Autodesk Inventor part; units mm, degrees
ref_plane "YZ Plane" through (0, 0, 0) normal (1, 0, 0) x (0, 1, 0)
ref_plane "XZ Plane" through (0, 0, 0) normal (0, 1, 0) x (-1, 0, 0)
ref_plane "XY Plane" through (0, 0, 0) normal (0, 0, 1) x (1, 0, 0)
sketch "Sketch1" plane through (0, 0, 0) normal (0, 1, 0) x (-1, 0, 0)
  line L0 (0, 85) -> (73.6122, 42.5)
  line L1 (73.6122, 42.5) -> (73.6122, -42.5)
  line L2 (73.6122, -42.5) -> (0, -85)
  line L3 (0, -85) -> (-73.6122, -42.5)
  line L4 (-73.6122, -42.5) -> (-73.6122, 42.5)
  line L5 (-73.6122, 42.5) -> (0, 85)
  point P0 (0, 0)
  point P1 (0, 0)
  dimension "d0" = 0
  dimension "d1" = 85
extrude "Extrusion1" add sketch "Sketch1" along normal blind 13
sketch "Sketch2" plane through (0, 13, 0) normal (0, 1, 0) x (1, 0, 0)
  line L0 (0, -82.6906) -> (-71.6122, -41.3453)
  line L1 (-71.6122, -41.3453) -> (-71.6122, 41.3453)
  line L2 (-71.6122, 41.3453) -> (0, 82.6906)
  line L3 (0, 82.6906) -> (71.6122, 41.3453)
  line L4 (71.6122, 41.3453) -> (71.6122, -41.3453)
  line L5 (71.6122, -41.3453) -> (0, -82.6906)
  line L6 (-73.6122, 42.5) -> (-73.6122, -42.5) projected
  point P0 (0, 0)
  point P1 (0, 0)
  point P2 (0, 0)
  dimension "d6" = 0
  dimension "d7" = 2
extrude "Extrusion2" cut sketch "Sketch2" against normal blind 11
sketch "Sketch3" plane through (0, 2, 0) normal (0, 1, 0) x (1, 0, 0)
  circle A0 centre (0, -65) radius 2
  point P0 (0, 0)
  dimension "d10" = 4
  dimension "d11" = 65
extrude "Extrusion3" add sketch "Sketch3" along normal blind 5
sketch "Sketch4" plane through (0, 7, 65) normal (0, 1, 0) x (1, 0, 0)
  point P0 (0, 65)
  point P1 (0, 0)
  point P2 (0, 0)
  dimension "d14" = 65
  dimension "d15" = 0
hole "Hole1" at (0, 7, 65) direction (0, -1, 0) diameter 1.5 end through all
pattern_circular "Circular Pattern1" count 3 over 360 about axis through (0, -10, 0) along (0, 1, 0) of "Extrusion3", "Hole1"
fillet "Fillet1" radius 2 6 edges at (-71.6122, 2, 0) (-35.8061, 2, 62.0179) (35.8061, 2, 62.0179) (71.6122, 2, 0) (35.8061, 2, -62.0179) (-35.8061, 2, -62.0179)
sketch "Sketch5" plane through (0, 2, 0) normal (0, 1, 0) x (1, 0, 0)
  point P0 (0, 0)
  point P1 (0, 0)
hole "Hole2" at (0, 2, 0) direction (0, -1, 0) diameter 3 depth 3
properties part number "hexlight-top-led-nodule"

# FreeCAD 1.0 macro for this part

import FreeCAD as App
import Part
import Sketcher
from FreeCAD import Vector
Q = App.Units.Quantity


def edges_at(feature, points):
    """Names of the edges that pass closest to the given points."""
    edges = feature.Shape.Edges
    near = lambda p: min(range(len(edges)), key=lambda i: edges[i].distToShape(Part.Vertex(*p))[0])
    return sorted({f"Edge{near(p) + 1}" for p in points})


def add_polygon(sketch, points):
    """Adds a closed chain of lines whose ends are joined by coincident constraints."""
    first, n = sketch.GeometryCount, len(points)
    for a, b in zip(points, points[1:] + points[:1]):
        sketch.addGeometry(Part.LineSegment(App.Vector(*a, 0), App.Vector(*b, 0)), False)
    for i in range(n):
        sketch.addConstraint(Sketcher.Constraint("Coincident", first + i, 2, first + (i + 1) % n, 1))

doc = App.newDocument("Part")
params = doc.addObject("Spreadsheet::Sheet", "Params")
for row, (alias, value) in enumerate([
    ("sketch1_height", "85 mm"),
    ("sketch1_length", "85 mm"),
    ("pad1_length", "13 mm"),
    ("pocket1_length", "11 mm"),
    ("sketch3_diameter", "4 mm"),
    ("pad2_length", "5 mm"),
    ("sketch4_diameter", "1.5 mm"),
    ("hole_diameter", "1.5 mm"),
    ("fillet_radius", "2 mm"),
    ("sketch5_diameter", "3 mm"),
    ("hole2_diameter", "3 mm"),
    ("hole2_depth", "3 mm"),
], start=1):
    params.set(f"A{row}", alias)
    params.set(f"B{row}", "=" + value)
    params.setAlias(f"B{row}", alias)

body = doc.addObject("PartDesign::Body", "Body")

# Sketch on XZ plane
sketch1 = doc.addObject("Sketcher::SketchObject", "Sketch")
body.addObject(sketch1)
sketch1.AttachmentSupport = (doc.XZ_Plane, [""])
sketch1.MapMode = "FlatFace"
add_polygon(sketch1, [(-73.6122, 42.5), (0, 85), (73.6122, 42.5), (73.6122, -42.5), (0, -85), (-73.6122, -42.5)])  # lines 0-5
sketch1.addConstraint([
    Sketcher.Constraint("Vertical", 2),
    Sketcher.Constraint("Vertical", 5),
    Sketcher.Constraint("Symmetric", 0, 2, 3, 2, -1, 1),
    Sketcher.Constraint("Symmetric", 1, 2, 4, 2, -1, 1),
    Sketcher.Constraint("PointOnObject", 0, 2, -2),
    Sketcher.Constraint("Parallel", 0, 3),
    Sketcher.Constraint("Horizontal", 2, 2, 4, 2),
    Sketcher.Constraint("DistanceY", 2, 2, 2, 1, Q("85 mm")),
    Sketcher.Constraint("Distance", 0, Q("85 mm")),
    Sketcher.Constraint("DistanceY", -1, 1, 0, 2, Q("85 mm")),
])
sketch1.setExpression("Constraints[13]", "Params.sketch1_height")
sketch1.setExpression("Constraints[14]", "Params.sketch1_length")
pad1 = doc.addObject("PartDesign::Pad", "Pad")
body.addObject(pad1)
pad1.Profile = sketch1
pad1.setExpression("Length", "Params.pad1_length")
pad1.Reversed = True

# Sketch on XZ plane
sketch2 = doc.addObject("Sketcher::SketchObject", "Sketch001")
body.addObject(sketch2)
sketch2.AttachmentSupport = (doc.XZ_Plane, [""])
sketch2.MapMode = "FlatFace"
sketch2.AttachmentOffset = App.Placement(Vector(0, 0, -13), App.Rotation())
add_polygon(sketch2, [(-71.6122, 41.3453), (0, 82.6906), (71.6122, 41.3453), (71.6122, -41.3453), (0, -82.6906), (-71.6122, -41.3453)])  # lines 0-5
sketch2.addConstraint([
    Sketcher.Constraint("Vertical", 2),
    Sketcher.Constraint("Vertical", 5),
    Sketcher.Constraint("Symmetric", 0, 2, 3, 2, -1, 1),
    Sketcher.Constraint("Symmetric", 1, 2, 4, 2, -1, 1),
    Sketcher.Constraint("PointOnObject", 0, 2, -2),
    Sketcher.Constraint("Parallel", 0, 3),
    Sketcher.Constraint("Horizontal", 2, 2, 4, 2),
    Sketcher.Constraint("Angle", 0, Q("30 deg")),
    Sketcher.Constraint("DistanceY", 2, 2, 2, 1, Q("82.6906 mm")),
    Sketcher.Constraint("DistanceY", 2, 2, 0, 2, Q("124.036 mm")),
])
pocket1 = doc.addObject("PartDesign::Pocket", "Pocket")
body.addObject(pocket1)
pocket1.Profile = sketch2
pocket1.setExpression("Length", "Params.pocket1_length")
pocket1.Reversed = True

# Sketch on XZ plane
sketch3 = doc.addObject("Sketcher::SketchObject", "Sketch002")
body.addObject(sketch3)
sketch3.AttachmentSupport = (doc.XZ_Plane, [""])
sketch3.MapMode = "FlatFace"
sketch3.AttachmentOffset = App.Placement(Vector(0, 0, -2), App.Rotation())
sketch3.addGeometry(Part.Circle(Vector(0, 65, 0), Vector(0, 0, 1), 2), False)
sketch3.addConstraint([
    Sketcher.Constraint("PointOnObject", 0, 3, -2),
    Sketcher.Constraint("Diameter", 0, Q("4 mm")),
    Sketcher.Constraint("DistanceY", -1, 1, 0, 3, Q("65 mm")),
])
sketch3.setExpression("Constraints[1]", "Params.sketch3_diameter")
pad2 = doc.addObject("PartDesign::Pad", "Pad001")
body.addObject(pad2)
pad2.Profile = sketch3
pad2.setExpression("Length", "Params.pad2_length")
pad2.Reversed = True

# Sketch on XZ plane
sketch4 = doc.addObject("Sketcher::SketchObject", "Sketch003")
body.addObject(sketch4)
sketch4.AttachmentSupport = (doc.XZ_Plane, [""])
sketch4.MapMode = "FlatFace"
sketch4.AttachmentOffset = App.Placement(Vector(0, 0, -7), App.Rotation())
sketch4.addGeometry(Part.Circle(Vector(0, 65, 0), Vector(0, 0, 1), 0.75), False)
sketch4.addConstraint([
    Sketcher.Constraint("PointOnObject", 0, 3, -2),
    Sketcher.Constraint("Diameter", 0, Q("1.5 mm")),
    Sketcher.Constraint("DistanceY", -1, 1, 0, 3, Q("65 mm")),
])
sketch4.setExpression("Constraints[1]", "Params.sketch4_diameter")
doc.recompute()
hole = doc.addObject("PartDesign::Hole", "Hole")
body.addObject(hole)
hole.Profile = sketch4
hole.ThreadType = "None"
hole.setExpression("Diameter", "Params.hole_diameter")
hole.DepthType = "ThroughAll"
hole.Reversed = True
doc.recompute()

polarpattern = doc.addObject("PartDesign::PolarPattern", "PolarPattern")
body.addObject(polarpattern)
polarpattern.Originals = [pad2, hole]
polarpattern.Axis = (doc.Y_Axis, [""])
polarpattern.Angle = 360
polarpattern.Occurrences = 3
body.Tip = polarpattern
doc.recompute()

fillet = doc.addObject("PartDesign::Fillet", "Fillet")
body.addObject(fillet)
fillet.Base = (polarpattern, edges_at(polarpattern, [
    (-71.612, 2, 0),
    (-35.806, 2, 62.018),
    (35.806, 2, 62.018),
    (71.612, 2, 0),
    (35.806, 2, -62.018),
    (-35.806, 2, -62.018),
]))
fillet.setExpression("Radius", "Params.fillet_radius")

# Sketch on XZ plane
sketch5 = doc.addObject("Sketcher::SketchObject", "Sketch004")
body.addObject(sketch5)
sketch5.AttachmentSupport = (doc.XZ_Plane, [""])
sketch5.MapMode = "FlatFace"
sketch5.AttachmentOffset = App.Placement(Vector(0, 0, -2), App.Rotation())
sketch5.addGeometry(Part.Circle(Vector(0, 0, 0), Vector(0, 0, 1), 1.5), False)
sketch5.addConstraint([
    Sketcher.Constraint("Coincident", 0, 3, -1, 1),
    Sketcher.Constraint("Diameter", 0, Q("3 mm")),
])
sketch5.setExpression("Constraints[1]", "Params.sketch5_diameter")
doc.recompute()
hole2 = doc.addObject("PartDesign::Hole", "Hole001")
body.addObject(hole2)
hole2.Profile = sketch5
hole2.ThreadType = "None"
hole2.setExpression("Diameter", "Params.hole2_diameter")
hole2.DepthType = "Dimension"
hole2.setExpression("Depth", "Params.hole2_depth")
hole2.DrillPoint = "Flat"
hole2.Reversed = True

doc.recompute()
